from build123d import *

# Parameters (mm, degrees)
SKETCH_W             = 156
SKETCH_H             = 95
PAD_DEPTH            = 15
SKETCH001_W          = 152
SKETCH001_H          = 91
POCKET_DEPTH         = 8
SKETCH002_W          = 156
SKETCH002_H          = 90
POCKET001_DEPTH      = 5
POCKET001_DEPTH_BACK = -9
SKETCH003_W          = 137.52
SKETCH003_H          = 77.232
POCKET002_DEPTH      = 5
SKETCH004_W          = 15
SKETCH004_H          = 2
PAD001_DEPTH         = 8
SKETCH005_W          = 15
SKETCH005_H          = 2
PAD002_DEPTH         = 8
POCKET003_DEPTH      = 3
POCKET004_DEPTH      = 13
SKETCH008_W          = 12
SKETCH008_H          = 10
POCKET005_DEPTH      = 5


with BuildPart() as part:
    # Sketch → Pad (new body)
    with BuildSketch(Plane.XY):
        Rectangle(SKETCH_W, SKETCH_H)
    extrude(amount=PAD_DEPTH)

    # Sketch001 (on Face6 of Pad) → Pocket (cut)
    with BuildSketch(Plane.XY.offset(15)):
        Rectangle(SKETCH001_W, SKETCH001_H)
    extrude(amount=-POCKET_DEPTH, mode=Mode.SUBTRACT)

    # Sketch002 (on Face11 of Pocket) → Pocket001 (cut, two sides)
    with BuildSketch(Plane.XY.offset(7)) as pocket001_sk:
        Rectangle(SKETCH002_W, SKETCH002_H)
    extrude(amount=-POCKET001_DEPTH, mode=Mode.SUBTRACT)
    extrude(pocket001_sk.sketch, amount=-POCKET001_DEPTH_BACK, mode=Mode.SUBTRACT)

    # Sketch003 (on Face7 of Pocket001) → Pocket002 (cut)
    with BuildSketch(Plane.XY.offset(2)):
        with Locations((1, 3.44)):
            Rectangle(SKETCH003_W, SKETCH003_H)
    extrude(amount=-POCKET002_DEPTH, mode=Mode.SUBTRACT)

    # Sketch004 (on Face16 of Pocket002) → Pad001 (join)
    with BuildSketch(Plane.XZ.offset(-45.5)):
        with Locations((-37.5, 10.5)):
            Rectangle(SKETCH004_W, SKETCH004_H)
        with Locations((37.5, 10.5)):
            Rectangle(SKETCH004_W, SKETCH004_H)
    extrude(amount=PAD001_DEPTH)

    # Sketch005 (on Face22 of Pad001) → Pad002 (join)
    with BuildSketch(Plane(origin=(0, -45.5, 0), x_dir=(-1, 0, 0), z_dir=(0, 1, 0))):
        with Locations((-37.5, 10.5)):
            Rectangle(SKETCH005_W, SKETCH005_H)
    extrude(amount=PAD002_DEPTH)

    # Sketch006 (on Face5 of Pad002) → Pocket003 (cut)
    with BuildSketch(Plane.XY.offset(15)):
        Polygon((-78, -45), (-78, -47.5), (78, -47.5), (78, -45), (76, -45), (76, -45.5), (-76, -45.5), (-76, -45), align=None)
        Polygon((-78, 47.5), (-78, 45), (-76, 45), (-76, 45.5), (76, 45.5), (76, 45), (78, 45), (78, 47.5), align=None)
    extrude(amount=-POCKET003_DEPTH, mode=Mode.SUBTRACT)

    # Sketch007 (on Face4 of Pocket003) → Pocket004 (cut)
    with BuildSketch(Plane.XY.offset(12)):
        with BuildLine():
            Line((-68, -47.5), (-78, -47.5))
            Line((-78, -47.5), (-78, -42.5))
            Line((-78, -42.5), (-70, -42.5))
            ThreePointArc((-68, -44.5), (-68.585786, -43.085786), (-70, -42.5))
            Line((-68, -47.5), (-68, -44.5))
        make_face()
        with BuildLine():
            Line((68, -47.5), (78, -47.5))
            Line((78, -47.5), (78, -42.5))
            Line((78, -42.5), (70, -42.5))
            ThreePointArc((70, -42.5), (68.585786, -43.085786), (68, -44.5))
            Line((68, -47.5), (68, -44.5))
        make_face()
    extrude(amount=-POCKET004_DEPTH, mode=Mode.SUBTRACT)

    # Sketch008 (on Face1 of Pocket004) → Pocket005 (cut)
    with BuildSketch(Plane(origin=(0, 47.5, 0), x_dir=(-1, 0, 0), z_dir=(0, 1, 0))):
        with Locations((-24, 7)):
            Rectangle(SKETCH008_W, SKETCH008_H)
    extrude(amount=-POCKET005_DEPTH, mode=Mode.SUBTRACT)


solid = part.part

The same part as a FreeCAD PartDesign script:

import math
import FreeCAD as App
import Part
import Sketcher

V = App.Vector
Q = App.Units.Quantity

doc = App.newDocument("Part")
body = doc.addObject("PartDesign::Body", "Body")

# Sketch on XY plane
sketch1 = doc.addObject("Sketcher::SketchObject", "Sketch")
body.addObject(sketch1)
sketch1.AttachmentSupport = (doc.XY_Plane, [""])
sketch1.MapMode = "FlatFace"
sketch1.addGeometry([
    Part.LineSegment(V(-78, 48, 0), V(-78, -48, 0)),
    Part.LineSegment(V(-78, -48, 0), V(78, -48, 0)),
    Part.LineSegment(V(78, -48, 0), V(78, 48, 0)),
    Part.LineSegment(V(78, 48, 0), V(-78, 48, 0)),
], False)
sketch1.addConstraint([
    Sketcher.Constraint("Coincident", 0, 2, 1, 1),
    Sketcher.Constraint("Coincident", 1, 2, 2, 1),
    Sketcher.Constraint("Coincident", 2, 2, 3, 1),
    Sketcher.Constraint("Coincident", 3, 2, 0, 1),
    Sketcher.Constraint("Vertical", 0),
    Sketcher.Constraint("Horizontal", 1),
    Sketcher.Constraint("Vertical", 2),
    Sketcher.Constraint("Horizontal", 3),
    Sketcher.Constraint("Symmetric", 0, 2, 2, 2, -1, 1),
    Sketcher.Constraint("DistanceX", 1, 1, 1, 2, Q("156 mm")),
    Sketcher.Constraint("DistanceY", 0, 2, 0, 1, Q("95 mm")),
])
pad1 = doc.addObject("PartDesign::Pad", "Pad")
body.addObject(pad1)
pad1.Profile = sketch1
pad1.Length = 15

# Sketch on XY plane
sketch2 = doc.addObject("Sketcher::SketchObject", "Sketch001")
body.addObject(sketch2)
sketch2.AttachmentSupport = (doc.XY_Plane, [""])
sketch2.MapMode = "FlatFace"
sketch2.AttachmentOffset = App.Placement(V(0, 0, 15), App.Rotation())
sketch2.addGeometry([
    Part.LineSegment(V(-76, 46, 0), V(-76, -46, 0)),
    Part.LineSegment(V(-76, -46, 0), V(76, -46, 0)),
    Part.LineSegment(V(76, -46, 0), V(76, 46, 0)),
    Part.LineSegment(V(76, 46, 0), V(-76, 46, 0)),
], False)
sketch2.addConstraint([
    Sketcher.Constraint("Coincident", 0, 2, 1, 1),
    Sketcher.Constraint("Coincident", 1, 2, 2, 1),
    Sketcher.Constraint("Coincident", 2, 2, 3, 1),
    Sketcher.Constraint("Coincident", 3, 2, 0, 1),
    Sketcher.Constraint("Vertical", 0),
    Sketcher.Constraint("Horizontal", 1),
    Sketcher.Constraint("Vertical", 2),
    Sketcher.Constraint("Horizontal", 3),
    Sketcher.Constraint("Symmetric", 0, 2, 2, 2, -1, 1),
    Sketcher.Constraint("DistanceX", 1, 1, 1, 2, Q("152 mm")),
    Sketcher.Constraint("DistanceY", 0, 2, 0, 1, Q("91 mm")),
])
pocket1 = doc.addObject("PartDesign::Pocket", "Pocket")
body.addObject(pocket1)
pocket1.Profile = sketch2
pocket1.Length = 8

# Sketch on XY plane
sketch3 = doc.addObject("Sketcher::SketchObject", "Sketch002")
body.addObject(sketch3)
sketch3.AttachmentSupport = (doc.XY_Plane, [""])
sketch3.MapMode = "FlatFace"
sketch3.AttachmentOffset = App.Placement(V(0, 0, 7), App.Rotation())
sketch3.addGeometry([
    Part.LineSegment(V(-78, 45, 0), V(-78, -45, 0)),
    Part.LineSegment(V(-78, -45, 0), V(78, -45, 0)),
    Part.LineSegment(V(78, -45, 0), V(78, 45, 0)),
    Part.LineSegment(V(78, 45, 0), V(-78, 45, 0)),
], False)
sketch3.addConstraint([
    Sketcher.Constraint("Coincident", 0, 2, 1, 1),
    Sketcher.Constraint("Coincident", 1, 2, 2, 1),
    Sketcher.Constraint("Coincident", 2, 2, 3, 1),
    Sketcher.Constraint("Coincident", 3, 2, 0, 1),
    Sketcher.Constraint("Vertical", 0),
    Sketcher.Constraint("Horizontal", 1),
    Sketcher.Constraint("Vertical", 2),
    Sketcher.Constraint("Horizontal", 3),
    Sketcher.Constraint("Symmetric", 0, 2, 2, 2, -1, 1),
    Sketcher.Constraint("DistanceX", 1, 1, 1, 2, Q("156 mm")),
    Sketcher.Constraint("DistanceY", 0, 2, 0, 1, Q("90 mm")),
])
pocket2 = doc.addObject("PartDesign::Pocket", "Pocket001")
body.addObject(pocket2)
pocket2.Profile = sketch3
pocket2.Type = "TwoLengths"
pocket2.Length = 5
pocket2.Length2 = 9

# Sketch on XY plane
sketch4 = doc.addObject("Sketcher::SketchObject", "Sketch003")
body.addObject(sketch4)
sketch4.AttachmentSupport = (doc.XY_Plane, [""])
sketch4.MapMode = "FlatFace"
sketch4.AttachmentOffset = App.Placement(V(0, 0, 2), App.Rotation())
sketch4.addGeometry([
    Part.LineSegment(V(-68, 42, 0), V(-68, -35, 0)),
    Part.LineSegment(V(-68, -35, 0), V(70, -35, 0)),
    Part.LineSegment(V(70, -35, 0), V(70, 42, 0)),
    Part.LineSegment(V(70, 42, 0), V(-68, 42, 0)),
], False)
sketch4.addConstraint([
    Sketcher.Constraint("Coincident", 0, 2, 1, 1),
    Sketcher.Constraint("Coincident", 1, 2, 2, 1),
    Sketcher.Constraint("Coincident", 2, 2, 3, 1),
    Sketcher.Constraint("Coincident", 3, 2, 0, 1),
    Sketcher.Constraint("Vertical", 0),
    Sketcher.Constraint("Horizontal", 1),
    Sketcher.Constraint("Vertical", 2),
    Sketcher.Constraint("Horizontal", 3),
    Sketcher.Constraint("DistanceX", 1, 1, 1, 2, Q("137.52 mm")),
    Sketcher.Constraint("DistanceY", 0, 2, 0, 1, Q("77.232 mm")),
    Sketcher.Constraint("DistanceX", 0, 2, -1, 1, Q("67.76 mm")),
    Sketcher.Constraint("DistanceY", 0, 2, -1, 1, Q("35.176 mm")),
])
pocket3 = doc.addObject("PartDesign::Pocket", "Pocket002")
body.addObject(pocket3)
pocket3.Profile = sketch4
pocket3.Length = 5

# Sketch on XZ plane
sketch5 = doc.addObject("Sketcher::SketchObject", "Sketch004")
body.addObject(sketch5)
sketch5.AttachmentSupport = (doc.XZ_Plane, [""])
sketch5.MapMode = "FlatFace"
sketch5.AttachmentOffset = App.Placement(V(0, 0, -45.5), App.Rotation())
sketch5.addGeometry([
    Part.LineSegment(V(-45, 11.5, 0), V(-45, 9.5, 0)),  # 0
    Part.LineSegment(V(-45, 9.5, 0), V(-30, 9.5, 0)),  # 1
    Part.LineSegment(V(-30, 9.5, 0), V(-30, 11.5, 0)),  # 2
    Part.LineSegment(V(-30, 11.5, 0), V(-45, 11.5, 0)),  # 3
    Part.LineSegment(V(30, 11.5, 0), V(30, 9.5, 0)),  # 4
    Part.LineSegment(V(30, 9.5, 0), V(45, 9.5, 0)),  # 5
    Part.LineSegment(V(45, 9.5, 0), V(45, 11.5, 0)),  # 6
    Part.LineSegment(V(45, 11.5, 0), V(30, 11.5, 0)),  # 7
], False)
sketch5.addConstraint([
    Sketcher.Constraint("Coincident", 0, 2, 1, 1),
    Sketcher.Constraint("Coincident", 1, 2, 2, 1),
    Sketcher.Constraint("Coincident", 2, 2, 3, 1),
    Sketcher.Constraint("Coincident", 3, 2, 0, 1),
    Sketcher.Constraint("Coincident", 4, 2, 5, 1),
    Sketcher.Constraint("Coincident", 5, 2, 6, 1),
    Sketcher.Constraint("Coincident", 6, 2, 7, 1),
    Sketcher.Constraint("Coincident", 7, 2, 4, 1),
    Sketcher.Constraint("Vertical", 0),
    Sketcher.Constraint("Horizontal", 1),
    Sketcher.Constraint("Vertical", 2),
    Sketcher.Constraint("Horizontal", 3),
    Sketcher.Constraint("Vertical", 4),
    Sketcher.Constraint("Horizontal", 5),
    Sketcher.Constraint("Vertical", 6),
    Sketcher.Constraint("Horizontal", 7),
    Sketcher.Constraint("Symmetric", 1, 2, 4, 2, -2),
    Sketcher.Constraint("Symmetric", 3, 2, 6, 2, -2),
    Sketcher.Constraint("DistanceX", 1, 1, 1, 2, Q("15 mm")),
    Sketcher.Constraint("DistanceY", 0, 2, 0, 1, Q("2 mm")),
    Sketcher.Constraint("DistanceX", 0, 2, -1, 1, Q("45 mm")),
    Sketcher.Constraint("DistanceY", -1, 1, 0, 2, Q("9.5 mm")),
])
pad2 = doc.addObject("PartDesign::Pad", "Pad001")
body.addObject(pad2)
pad2.Profile = sketch5
pad2.Length = 8

# Sketch on XZ plane
sketch6 = doc.addObject("Sketcher::SketchObject", "Sketch005")
body.addObject(sketch6)
sketch6.AttachmentSupport = (doc.XZ_Plane, [""])
sketch6.MapMode = "FlatFace"
sketch6.AttachmentOffset = App.Placement(V(0, 0, 45.5), App.Rotation())
sketch6.addGeometry([
    Part.LineSegment(V(45, 11.5, 0), V(45, 9.5, 0)),
    Part.LineSegment(V(45, 9.5, 0), V(30, 9.5, 0)),
    Part.LineSegment(V(30, 9.5, 0), V(30, 11.5, 0)),
    Part.LineSegment(V(30, 11.5, 0), V(45, 11.5, 0)),
], False)
sketch6.addConstraint([
    Sketcher.Constraint("Coincident", 0, 2, 1, 1),
    Sketcher.Constraint("Coincident", 1, 2, 2, 1),
    Sketcher.Constraint("Coincident", 2, 2, 3, 1),
    Sketcher.Constraint("Coincident", 3, 2, 0, 1),
    Sketcher.Constraint("Vertical", 0),
    Sketcher.Constraint("Horizontal", 1),
    Sketcher.Constraint("Vertical", 2),
    Sketcher.Constraint("Horizontal", 3),
    Sketcher.Constraint("DistanceX", 1, 2, 1, 1, Q("15 mm")),
    Sketcher.Constraint("DistanceY", 0, 2, 0, 1, Q("2 mm")),
    Sketcher.Constraint("DistanceX", -1, 1, 0, 2, Q("45 mm")),
    Sketcher.Constraint("DistanceY", -1, 1, 0, 2, Q("9.5 mm")),
])
pad3 = doc.addObject("PartDesign::Pad", "Pad002")
body.addObject(pad3)
pad3.Profile = sketch6
pad3.Length = 8
pad3.Reversed = True

# Sketch on XY plane
sketch7 = doc.addObject("Sketcher::SketchObject", "Sketch006")
body.addObject(sketch7)
sketch7.AttachmentSupport = (doc.XY_Plane, [""])
sketch7.MapMode = "FlatFace"
sketch7.AttachmentOffset = App.Placement(V(0, 0, 15), App.Rotation())
sketch7.addGeometry([
    Part.LineSegment(V(-78, -45, 0), V(-78, -47.5, 0)),  # 0
    Part.LineSegment(V(-78, -47.5, 0), V(78, -47.5, 0)),  # 1
    Part.LineSegment(V(78, -47.5, 0), V(78, -45, 0)),  # 2
    Part.LineSegment(V(78, -45, 0), V(76, -45, 0)),  # 3
    Part.LineSegment(V(76, -45, 0), V(76, -45.5, 0)),  # 4
    Part.LineSegment(V(76, -45.5, 0), V(-76, -45.5, 0)),  # 5
    Part.LineSegment(V(-76, -45.5, 0), V(-76, -45, 0)),  # 6
    Part.LineSegment(V(-76, -45, 0), V(-78, -45, 0)),  # 7
    Part.LineSegment(V(-78, 47.5, 0), V(-78, 45, 0)),  # 8
    Part.LineSegment(V(-78, 45, 0), V(-76, 45, 0)),  # 9
    Part.LineSegment(V(-76, 45, 0), V(-76, 45.5, 0)),  # 10
    Part.LineSegment(V(-76, 45.5, 0), V(76, 45.5, 0)),  # 11
    Part.LineSegment(V(76, 45.5, 0), V(76, 45, 0)),  # 12
    Part.LineSegment(V(76, 45, 0), V(78, 45, 0)),  # 13
    Part.LineSegment(V(78, 45, 0), V(78, 47.5, 0)),  # 14
    Part.LineSegment(V(78, 47.5, 0), V(-78, 47.5, 0)),  # 15
], False)
sketch7.addConstraint([
    Sketcher.Constraint("Coincident", 0, 2, 1, 1),
    Sketcher.Constraint("Coincident", 1, 2, 2, 1),
    Sketcher.Constraint("Coincident", 2, 2, 3, 1),
    Sketcher.Constraint("Coincident", 3, 2, 4, 1),
    Sketcher.Constraint("Coincident", 4, 2, 5, 1),
    Sketcher.Constraint("Coincident", 5, 2, 6, 1),
    Sketcher.Constraint("Coincident", 6, 2, 7, 1),
    Sketcher.Constraint("Coincident", 7, 2, 0, 1),
    Sketcher.Constraint("Coincident", 8, 2, 9, 1),
    Sketcher.Constraint("Coincident", 9, 2, 10, 1),
    Sketcher.Constraint("Coincident", 10, 2, 11, 1),
    Sketcher.Constraint("Coincident", 11, 2, 12, 1),
    Sketcher.Constraint("Coincident", 12, 2, 13, 1),
    Sketcher.Constraint("Coincident", 13, 2, 14, 1),
    Sketcher.Constraint("Coincident", 14, 2, 15, 1),
    Sketcher.Constraint("Coincident", 15, 2, 8, 1),
    Sketcher.Constraint("Vertical", 0),
    Sketcher.Constraint("Horizontal", 1),
    Sketcher.Constraint("Vertical", 2),
    Sketcher.Constraint("Horizontal", 3),
    Sketcher.Constraint("Vertical", 4),
    Sketcher.Constraint("Horizontal", 5),
    Sketcher.Constraint("Vertical", 6),
    Sketcher.Constraint("Horizontal", 7),
    Sketcher.Constraint("Vertical", 8),
    Sketcher.Constraint("Horizontal", 9),
    Sketcher.Constraint("Vertical", 10),
    Sketcher.Constraint("Horizontal", 11),
    Sketcher.Constraint("Vertical", 12),
    Sketcher.Constraint("Horizontal", 13),
    Sketcher.Constraint("Vertical", 14),
    Sketcher.Constraint("Horizontal", 15),
    Sketcher.Constraint("Symmetric", 2, 2, 8, 2, -1, 1),
    Sketcher.Constraint("Symmetric", 4, 2, 10, 2, -1, 1),
    Sketcher.Constraint("Symmetric", 6, 2, 12, 2, -1, 1),
    Sketcher.Constraint("Symmetric", 0, 2, 14, 2, -1, 1),
    Sketcher.Constraint("Symmetric", 3, 2, 6, 2, -2),
    Sketcher.Constraint("Vertical", 7, 2, 8, 2),
    Sketcher.Constraint("DistanceX", 1, 1, 1, 2, Q("156 mm")),
    Sketcher.Constraint("DistanceX", 3, 2, 3, 1, Q("2 mm")),
    Sketcher.Constraint("DistanceY", 0, 2, 0, 1, Q("2.5 mm")),
    Sketcher.Constraint("DistanceY", 4, 2, 4, 1, Q("0.5 mm")),
    Sketcher.Constraint("DistanceY", 2, 2, -1, 1, Q("45 mm")),
])
pocket4 = doc.addObject("PartDesign::Pocket", "Pocket003")
body.addObject(pocket4)
pocket4.Profile = sketch7
pocket4.Length = 3

# Sketch on XY plane
sketch8 = doc.addObject("Sketcher::SketchObject", "Sketch007")
body.addObject(sketch8)
sketch8.AttachmentSupport = (doc.XY_Plane, [""])
sketch8.MapMode = "FlatFace"
sketch8.AttachmentOffset = App.Placement(V(0, 0, 12), App.Rotation())
sketch8.addGeometry([
    Part.LineSegment(V(-78, -47.5, 0), V(-68, -47.5, 0)),  # 0
    Part.LineSegment(V(-68, -47.5, 0), V(-68, -44.5, 0)),  # 1
    Part.ArcOfCircle(Part.Circle(V(-70, -44.5, 0), V(0, 0, 1), 2), math.radians(0), math.radians(90)),  # 2
    Part.LineSegment(V(-70, -42.5, 0), V(-78, -42.5, 0)),  # 3
    Part.LineSegment(V(-78, -42.5, 0), V(-78, -47.5, 0)),  # 4
    Part.LineSegment(V(68, -47.5, 0), V(78, -47.5, 0)),  # 5
    Part.LineSegment(V(78, -47.5, 0), V(78, -42.5, 0)),  # 6
    Part.LineSegment(V(78, -42.5, 0), V(70, -42.5, 0)),  # 7
    Part.ArcOfCircle(Part.Circle(V(70, -44.5, 0), V(0, 0, 1), 2), math.radians(90), math.radians(180)),  # 8
    Part.LineSegment(V(68, -44.5, 0), V(68, -47.5, 0)),  # 9
], False)
sketch8.addConstraint([
    Sketcher.Constraint("Coincident", 0, 2, 1, 1),
    Sketcher.Constraint("Tangent", 1, 2, 2, 1),
    Sketcher.Constraint("Tangent", 2, 2, 3, 1),
    Sketcher.Constraint("Coincident", 3, 2, 4, 1),
    Sketcher.Constraint("Coincident", 4, 2, 0, 1),
    Sketcher.Constraint("Coincident", 5, 2, 6, 1),
    Sketcher.Constraint("Coincident", 6, 2, 7, 1),
    Sketcher.Constraint("Tangent", 7, 2, 8, 1),
    Sketcher.Constraint("Tangent", 8, 2, 9, 1),
    Sketcher.Constraint("Coincident", 9, 2, 5, 1),
    Sketcher.Constraint("Horizontal", 0),
    Sketcher.Constraint("Vertical", 1),
    Sketcher.Constraint("Horizontal", 3),
    Sketcher.Constraint("Vertical", 4),
    Sketcher.Constraint("Horizontal", 5),
    Sketcher.Constraint("Vertical", 6),
    Sketcher.Constraint("Horizontal", 7),
    Sketcher.Constraint("Vertical", 9),
    Sketcher.Constraint("Equal", 2, 8),
    Sketcher.Constraint("Symmetric", 2, 3, 8, 3, -2),
    Sketcher.Constraint("Symmetric", 4, 2, 5, 2, -2),
    Sketcher.Constraint("Radius", 2, Q("1.999999 mm")),
    Sketcher.Constraint("DistanceX", 0, 1, 0, 2, Q("10 mm")),
    Sketcher.Constraint("DistanceY", 1, 1, 1, 2, Q("3 mm")),
    Sketcher.Constraint("DistanceX", 2, 3, -1, 1, Q("69.999999 mm")),
    Sketcher.Constraint("DistanceY", 2, 3, -1, 1, Q("44.499999 mm")),
])
pocket5 = doc.addObject("PartDesign::Pocket", "Pocket004")
body.addObject(pocket5)
pocket5.Profile = sketch8
pocket5.Length = 13

# Sketch on XZ plane
sketch9 = doc.addObject("Sketcher::SketchObject", "Sketch008")
body.addObject(sketch9)
sketch9.AttachmentSupport = (doc.XZ_Plane, [""])
sketch9.MapMode = "FlatFace"
sketch9.AttachmentOffset = App.Placement(V(0, 0, -47.5), App.Rotation())
sketch9.addGeometry([
    Part.LineSegment(V(30, 12, 0), V(30, 2, 0)),
    Part.LineSegment(V(30, 2, 0), V(18, 2, 0)),
    Part.LineSegment(V(18, 2, 0), V(18, 12, 0)),
    Part.LineSegment(V(18, 12, 0), V(30, 12, 0)),
], False)
sketch9.addConstraint([
    Sketcher.Constraint("Coincident", 0, 2, 1, 1),
    Sketcher.Constraint("Coincident", 1, 2, 2, 1),
    Sketcher.Constraint("Coincident", 2, 2, 3, 1),
    Sketcher.Constraint("Coincident", 3, 2, 0, 1),
    Sketcher.Constraint("Vertical", 0),
    Sketcher.Constraint("Horizontal", 1),
    Sketcher.Constraint("Vertical", 2),
    Sketcher.Constraint("Horizontal", 3),
    Sketcher.Constraint("DistanceX", 1, 2, 1, 1, Q("12 mm")),
    Sketcher.Constraint("DistanceY", 0, 2, 0, 1, Q("10 mm")),
    Sketcher.Constraint("DistanceX", -1, 1, 0, 2, Q("30 mm")),
    Sketcher.Constraint("DistanceY", -1, 1, 0, 2, Q("2 mm")),
])
pocket6 = doc.addObject("PartDesign::Pocket", "Pocket005")
body.addObject(pocket6)
pocket6.Profile = sketch9
pocket6.Length = 5
pocket6.Reversed = True

doc.recompute()
